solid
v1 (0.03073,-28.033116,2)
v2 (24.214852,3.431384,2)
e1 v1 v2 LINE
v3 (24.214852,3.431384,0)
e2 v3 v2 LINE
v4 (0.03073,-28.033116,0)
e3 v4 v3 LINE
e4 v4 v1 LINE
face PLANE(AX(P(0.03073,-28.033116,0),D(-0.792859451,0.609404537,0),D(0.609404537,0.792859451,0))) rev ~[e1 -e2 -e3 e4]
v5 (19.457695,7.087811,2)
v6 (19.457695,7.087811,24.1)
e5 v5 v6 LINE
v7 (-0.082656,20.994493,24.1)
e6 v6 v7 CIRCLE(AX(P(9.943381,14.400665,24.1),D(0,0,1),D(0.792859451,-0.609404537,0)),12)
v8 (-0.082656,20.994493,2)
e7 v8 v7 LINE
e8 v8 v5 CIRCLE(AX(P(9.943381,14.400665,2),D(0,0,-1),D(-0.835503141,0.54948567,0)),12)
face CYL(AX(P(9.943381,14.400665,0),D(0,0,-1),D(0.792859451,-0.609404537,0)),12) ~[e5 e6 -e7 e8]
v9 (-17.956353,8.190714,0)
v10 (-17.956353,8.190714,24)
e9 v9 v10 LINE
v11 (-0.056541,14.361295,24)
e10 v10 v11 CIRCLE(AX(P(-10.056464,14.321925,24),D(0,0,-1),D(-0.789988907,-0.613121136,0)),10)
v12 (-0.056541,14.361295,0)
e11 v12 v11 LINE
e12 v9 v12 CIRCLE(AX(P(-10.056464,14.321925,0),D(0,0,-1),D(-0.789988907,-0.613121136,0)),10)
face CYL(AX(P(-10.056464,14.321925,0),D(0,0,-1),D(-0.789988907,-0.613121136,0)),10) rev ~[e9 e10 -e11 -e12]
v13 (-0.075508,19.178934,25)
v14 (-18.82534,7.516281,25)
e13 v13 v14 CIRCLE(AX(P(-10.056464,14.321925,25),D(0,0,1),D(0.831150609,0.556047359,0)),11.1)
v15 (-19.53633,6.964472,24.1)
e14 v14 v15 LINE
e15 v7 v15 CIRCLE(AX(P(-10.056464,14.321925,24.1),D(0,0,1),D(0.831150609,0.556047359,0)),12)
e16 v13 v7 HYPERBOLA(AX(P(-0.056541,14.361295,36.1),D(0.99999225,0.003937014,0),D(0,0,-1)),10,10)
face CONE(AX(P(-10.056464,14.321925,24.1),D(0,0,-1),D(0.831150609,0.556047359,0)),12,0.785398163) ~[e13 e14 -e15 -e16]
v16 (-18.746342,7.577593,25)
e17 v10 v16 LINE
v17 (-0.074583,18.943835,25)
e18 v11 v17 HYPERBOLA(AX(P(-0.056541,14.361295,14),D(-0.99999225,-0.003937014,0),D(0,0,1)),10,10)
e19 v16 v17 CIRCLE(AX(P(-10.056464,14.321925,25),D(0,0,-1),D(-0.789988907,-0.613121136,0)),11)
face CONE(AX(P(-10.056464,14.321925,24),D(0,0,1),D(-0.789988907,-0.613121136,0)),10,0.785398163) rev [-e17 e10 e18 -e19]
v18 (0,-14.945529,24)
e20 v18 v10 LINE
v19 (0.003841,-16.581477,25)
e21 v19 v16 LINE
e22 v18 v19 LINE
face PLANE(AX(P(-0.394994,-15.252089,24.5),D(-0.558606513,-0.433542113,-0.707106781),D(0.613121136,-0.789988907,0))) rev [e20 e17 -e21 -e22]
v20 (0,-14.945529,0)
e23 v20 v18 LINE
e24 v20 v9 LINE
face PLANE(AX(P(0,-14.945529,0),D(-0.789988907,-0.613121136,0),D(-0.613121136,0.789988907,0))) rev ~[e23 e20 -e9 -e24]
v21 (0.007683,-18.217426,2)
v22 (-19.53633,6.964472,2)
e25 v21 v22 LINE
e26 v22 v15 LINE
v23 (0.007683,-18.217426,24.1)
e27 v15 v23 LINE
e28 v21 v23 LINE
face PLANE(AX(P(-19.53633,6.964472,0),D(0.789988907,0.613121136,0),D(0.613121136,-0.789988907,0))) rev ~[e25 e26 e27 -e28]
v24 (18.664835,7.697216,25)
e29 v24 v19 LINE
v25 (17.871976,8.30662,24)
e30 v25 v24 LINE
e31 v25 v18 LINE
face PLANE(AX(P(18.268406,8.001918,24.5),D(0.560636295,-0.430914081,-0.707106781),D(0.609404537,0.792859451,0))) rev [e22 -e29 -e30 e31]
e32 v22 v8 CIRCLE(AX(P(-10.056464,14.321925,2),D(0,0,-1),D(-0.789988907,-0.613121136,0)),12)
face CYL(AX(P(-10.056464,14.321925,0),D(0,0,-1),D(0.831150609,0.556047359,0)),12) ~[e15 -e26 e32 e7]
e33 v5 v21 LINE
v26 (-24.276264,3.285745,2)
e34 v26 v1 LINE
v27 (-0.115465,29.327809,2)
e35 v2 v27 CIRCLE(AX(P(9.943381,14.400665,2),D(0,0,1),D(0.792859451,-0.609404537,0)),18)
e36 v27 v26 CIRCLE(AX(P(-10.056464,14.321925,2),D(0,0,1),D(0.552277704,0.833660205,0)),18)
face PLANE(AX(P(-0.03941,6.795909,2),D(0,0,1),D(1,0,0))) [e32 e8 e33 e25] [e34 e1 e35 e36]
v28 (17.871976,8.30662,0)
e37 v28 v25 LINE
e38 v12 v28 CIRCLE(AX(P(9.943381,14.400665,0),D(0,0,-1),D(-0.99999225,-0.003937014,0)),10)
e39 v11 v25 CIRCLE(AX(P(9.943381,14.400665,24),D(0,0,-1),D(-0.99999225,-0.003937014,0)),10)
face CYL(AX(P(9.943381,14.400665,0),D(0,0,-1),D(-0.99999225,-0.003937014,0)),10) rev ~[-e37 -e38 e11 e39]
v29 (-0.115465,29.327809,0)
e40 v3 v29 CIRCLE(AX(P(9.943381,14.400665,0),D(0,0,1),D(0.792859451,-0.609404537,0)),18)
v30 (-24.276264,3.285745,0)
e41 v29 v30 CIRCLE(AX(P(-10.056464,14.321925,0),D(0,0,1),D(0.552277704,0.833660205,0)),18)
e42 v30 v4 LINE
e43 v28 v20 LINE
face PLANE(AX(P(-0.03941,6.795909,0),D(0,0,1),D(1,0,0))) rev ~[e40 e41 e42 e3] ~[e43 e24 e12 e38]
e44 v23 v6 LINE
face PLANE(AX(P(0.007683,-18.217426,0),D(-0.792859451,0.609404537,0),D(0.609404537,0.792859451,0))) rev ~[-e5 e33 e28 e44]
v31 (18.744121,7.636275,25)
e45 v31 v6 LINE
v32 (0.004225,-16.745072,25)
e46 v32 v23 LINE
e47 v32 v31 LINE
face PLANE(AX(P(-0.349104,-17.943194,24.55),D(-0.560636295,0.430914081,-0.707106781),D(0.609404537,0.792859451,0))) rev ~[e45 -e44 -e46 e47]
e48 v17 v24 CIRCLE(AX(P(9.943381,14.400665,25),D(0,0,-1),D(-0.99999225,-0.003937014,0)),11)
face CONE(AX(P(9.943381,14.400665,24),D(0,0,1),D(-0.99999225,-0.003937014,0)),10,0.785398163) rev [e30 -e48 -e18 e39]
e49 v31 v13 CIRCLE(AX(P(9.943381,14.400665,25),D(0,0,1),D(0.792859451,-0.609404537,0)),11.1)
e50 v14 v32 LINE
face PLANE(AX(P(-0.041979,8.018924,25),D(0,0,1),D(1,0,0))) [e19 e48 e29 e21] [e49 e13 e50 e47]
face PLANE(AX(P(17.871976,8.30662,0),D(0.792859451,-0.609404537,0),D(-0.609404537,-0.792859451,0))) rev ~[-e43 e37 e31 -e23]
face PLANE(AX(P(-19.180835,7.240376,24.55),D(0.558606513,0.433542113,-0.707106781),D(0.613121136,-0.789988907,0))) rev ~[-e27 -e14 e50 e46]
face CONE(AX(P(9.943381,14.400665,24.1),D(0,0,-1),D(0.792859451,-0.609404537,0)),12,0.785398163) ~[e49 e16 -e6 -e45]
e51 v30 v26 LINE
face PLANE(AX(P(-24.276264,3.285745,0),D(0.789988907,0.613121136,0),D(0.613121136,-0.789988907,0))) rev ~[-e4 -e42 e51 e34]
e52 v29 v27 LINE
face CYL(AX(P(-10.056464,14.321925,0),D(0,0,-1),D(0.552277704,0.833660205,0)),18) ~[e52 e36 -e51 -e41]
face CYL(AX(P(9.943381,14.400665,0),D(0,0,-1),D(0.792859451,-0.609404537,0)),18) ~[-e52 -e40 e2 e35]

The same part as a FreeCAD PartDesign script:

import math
import FreeCAD as App
import Part
import Sketcher


def edges_at(feature, points):
    """Names of the edges that pass closest to the given points."""
    edges = feature.Shape.Edges
    near = lambda p: min(range(len(edges)), key=lambda i: edges[i].distToShape(Part.Vertex(*p))[0])
    return sorted({f"Edge{near(p) + 1}" for p in points})

doc = App.newDocument("Part")
body = doc.addObject("PartDesign::Body", "Body")

sketch1 = body.newObject("Sketcher::SketchObject", "Sketch")
sketch1.AttachmentSupport = (doc.getObject("XY_Plane"), [""])
sketch1.MapMode = "FlatFace"
sketch1.addGeometry([
    Part.ArcOfCircle(Part.Circle(App.Vector(10, 14, 0), App.Vector(0, 0, 1), 12), math.radians(-38), math.radians(147)),
    Part.ArcOfCircle(Part.Circle(App.Vector(-10, 14, 0), App.Vector(0, 0, 1), 12), math.radians(34), math.radians(218)),
    Part.LineSegment(App.Vector(-20, 7, 0), App.Vector(0, -18, 0)),
    Part.LineSegment(App.Vector(0, -18, 0), App.Vector(19, 7, 0)),
    Part.ArcOfCircle(Part.Circle(App.Vector(10, 14, 0), App.Vector(0, 0, 1), 10), math.radians(-38), math.radians(180)),
    Part.LineSegment(App.Vector(18, 8, 0), App.Vector(0, -15, 0)),
    Part.LineSegment(App.Vector(0, -15, 0), App.Vector(-18, 8, 0)),
    Part.ArcOfCircle(Part.Circle(App.Vector(-10, 14, 0), App.Vector(0, 0, 1), 10), math.radians(0), math.radians(218)),
], False)
sketch1.addConstraint([
    Sketcher.Constraint("Coincident", 0, 2, 1, 1),
    Sketcher.Constraint("Tangent", 1, 2, 2, 1),
    Sketcher.Constraint("Coincident", 2, 2, 3, 1),
    Sketcher.Constraint("Tangent", 3, 2, 0, 1),
    Sketcher.Constraint("Tangent", 4, 1, 5, 1),
    Sketcher.Constraint("Coincident", 5, 2, 6, 1),
    Sketcher.Constraint("Tangent", 6, 2, 7, 2),
    Sketcher.Constraint("Tangent", 7, 1, 4, 2),
    Sketcher.Constraint("Coincident", 4, 3, 0, 3),
    Sketcher.Constraint("Coincident", 7, 3, 1, 3),
    Sketcher.Constraint("Equal", 0, 1),
    Sketcher.Constraint("Equal", 4, 7),
    Sketcher.Constraint("PointOnObject", 5, 2, -2),
    Sketcher.Constraint("Parallel", 3, 5),
    Sketcher.Constraint("Parallel", 2, 6),
    Sketcher.Constraint("Radius", 0, 12.0),
    Sketcher.Constraint("Radius", 4, 10.0),
    Sketcher.Constraint("DistanceY", 5, 2, 1, 2, 21.91),
    Sketcher.Constraint("DistanceX", 2, 2, 0, 3, 9.935699),
    Sketcher.Constraint("Distance", 3, 31.916422),
    Sketcher.Constraint("DistanceY", -1, 1, 1, 2, 6.964472),
])
pad1 = body.newObject("PartDesign::Pad", "Pad")
pad1.Profile = sketch1
pad1.Length = 25
doc.recompute()

chamfer = body.newObject("PartDesign::Chamfer", "Chamfer")
chamfer.Base = (pad1, edges_at(pad1, [
    (-8.978, -3.377, 25),
    (8.936, -3.319, 25),
    (13.143, 23.875, 25),
    (-13.316, 23.776, 25),
]))
chamfer.Size = 1
doc.recompute()

chamfer2 = body.newObject("PartDesign::Chamfer", "Chamfer001")
chamfer2.Base = (chamfer, edges_at(chamfer, [
    (-9.764, -5.626, 25),
    (-17.076, 24.055, 25),
    (16.901, 24.177, 25),
    (9.733, -5.565, 25),
]))
chamfer2.Size = 0.9

sketch2 = body.newObject("Sketcher::SketchObject", "Sketch001")
sketch2.AttachmentSupport = (doc.getObject("XY_Plane"), [""])
sketch2.MapMode = "FlatFace"
sketch2.addGeometry([
    Part.LineSegment(App.Vector(0, -28, 0), App.Vector(24, 3, 0)),
    Part.ArcOfCircle(Part.Circle(App.Vector(10, 14, 0), App.Vector(0, 0, 1), 18), math.radians(-38), math.radians(124)),
    Part.ArcOfCircle(Part.Circle(App.Vector(-10, 14, 0), App.Vector(0, 0, 1), 18), math.radians(56), math.radians(218)),
    Part.LineSegment(App.Vector(-24, 3, 0), App.Vector(0, -28, 0)),
    Part.LineSegment(App.Vector(0, -18, 0), App.Vector(-20, 7, 0)),
    Part.ArcOfCircle(Part.Circle(App.Vector(-10, 14, 0), App.Vector(0, 0, 1), 12), math.radians(34), math.radians(218)),
    Part.ArcOfCircle(Part.Circle(App.Vector(10, 14, 0), App.Vector(0, 0, 1), 12), math.radians(-38), math.radians(147)),
    Part.LineSegment(App.Vector(19, 7, 0), App.Vector(0, -18, 0)),
], False)
sketch2.addConstraint([
    Sketcher.Constraint("Tangent", 0, 2, 1, 1),
    Sketcher.Constraint("Coincident", 1, 2, 2, 1),
    Sketcher.Constraint("Tangent", 2, 2, 3, 1),
    Sketcher.Constraint("Coincident", 3, 2, 0, 1),
    Sketcher.Constraint("Tangent", 4, 2, 5, 2),
    Sketcher.Constraint("Coincident", 5, 1, 6, 2),
    Sketcher.Constraint("Tangent", 6, 1, 7, 1),
    Sketcher.Constraint("Coincident", 7, 2, 4, 1),
    Sketcher.Constraint("Coincident", 5, 3, 2, 3),
    Sketcher.Constraint("Coincident", 6, 3, 1, 3),
    Sketcher.Constraint("Equal", 1, 2),
    Sketcher.Constraint("Equal", 5, 6),
    Sketcher.Constraint("Parallel", 3, 4),
    Sketcher.Constraint("Parallel", 0, 7),
    Sketcher.Constraint("Radius", 1, 18.0),
    Sketcher.Constraint("Radius", 5, 12.0),
    Sketcher.Constraint("DistanceX", 2, 3, 1, 2, 9.940999),
    Sketcher.Constraint("DistanceX", 2, 2, 2, 3, 14.2198),
    Sketcher.Constraint("DistanceY", 3, 2, 0, 2, 31.4645),
    Sketcher.Constraint("Distance", 0, 39.68484),
    Sketcher.Constraint("DistanceX", -1, 1, 1, 3, 9.943381),
    Sketcher.Constraint("DistanceY", -1, 1, 1, 2, 29.327809),
])
pad2 = body.newObject("PartDesign::Pad", "Pad001")
pad2.Profile = sketch2
pad2.Length = 2

doc.recompute()
